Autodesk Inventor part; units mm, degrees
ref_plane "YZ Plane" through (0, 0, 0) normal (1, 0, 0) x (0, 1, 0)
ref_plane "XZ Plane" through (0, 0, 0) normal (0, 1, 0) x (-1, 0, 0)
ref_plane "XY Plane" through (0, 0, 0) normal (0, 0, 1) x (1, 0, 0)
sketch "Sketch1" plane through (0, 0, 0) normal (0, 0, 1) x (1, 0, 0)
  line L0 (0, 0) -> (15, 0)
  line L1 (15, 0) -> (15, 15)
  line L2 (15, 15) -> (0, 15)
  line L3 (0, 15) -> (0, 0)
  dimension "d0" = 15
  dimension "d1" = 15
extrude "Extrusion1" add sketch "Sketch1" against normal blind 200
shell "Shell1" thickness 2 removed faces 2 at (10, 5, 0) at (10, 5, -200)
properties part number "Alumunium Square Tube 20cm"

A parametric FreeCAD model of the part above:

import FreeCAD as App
import Part
import Sketcher
from FreeCAD import Vector


def faces_at(feature, points):
    """Names of the faces that lie closest to the given points."""
    faces = feature.Shape.Faces
    near = lambda p: min(range(len(faces)), key=lambda i: faces[i].distToShape(Part.Vertex(*p))[0])
    return sorted({f"Face{near(p) + 1}" for p in points})


def add_polygon(sketch, points):
    """Adds a closed chain of lines whose ends are joined by coincident constraints."""
    first, n = sketch.GeometryCount, len(points)
    for a, b in zip(points, points[1:] + points[:1]):
        sketch.addGeometry(Part.LineSegment(App.Vector(*a, 0), App.Vector(*b, 0)), False)
    for i in range(n):
        sketch.addConstraint(Sketcher.Constraint("Coincident", first + i, 2, first + (i + 1) % n, 1))

doc = App.newDocument("Part")
body = doc.addObject("PartDesign::Body", "Body")

# Sketch on XY plane
sketch1 = doc.addObject("Sketcher::SketchObject", "Sketch")
body.addObject(sketch1)
sketch1.AttachmentSupport = (doc.XY_Plane, [""])
sketch1.MapMode = "FlatFace"
add_polygon(sketch1, [(0, 15), (0, 0), (15, 0), (15, 15)])  # lines 0-3
sketch1.addConstraint([
    Sketcher.Constraint("Vertical", 0),
    Sketcher.Constraint("Horizontal", 1),
    Sketcher.Constraint("Vertical", 2),
    Sketcher.Constraint("Horizontal", 3),
    Sketcher.Constraint("Coincident", 0, 2, -1, 1),
    Sketcher.Constraint("Equal", 3, 0),
    Sketcher.Constraint("DistanceX", 1, 1, 1, 2, 15.0),
])
pad1 = doc.addObject("PartDesign::Pad", "Pad")
body.addObject(pad1)
pad1.Profile = sketch1
pad1.Length = 200
pad1.Reversed = True
doc.recompute()

thickness = doc.addObject("PartDesign::Thickness", "Thickness")
body.addObject(thickness)
thickness.Base = (pad1, faces_at(pad1, [(10, 5, 0), (10, 5, -200)]))
thickness.Value = 2
thickness.Reversed = True
thickness.Join = "Intersection"

doc.recompute()
